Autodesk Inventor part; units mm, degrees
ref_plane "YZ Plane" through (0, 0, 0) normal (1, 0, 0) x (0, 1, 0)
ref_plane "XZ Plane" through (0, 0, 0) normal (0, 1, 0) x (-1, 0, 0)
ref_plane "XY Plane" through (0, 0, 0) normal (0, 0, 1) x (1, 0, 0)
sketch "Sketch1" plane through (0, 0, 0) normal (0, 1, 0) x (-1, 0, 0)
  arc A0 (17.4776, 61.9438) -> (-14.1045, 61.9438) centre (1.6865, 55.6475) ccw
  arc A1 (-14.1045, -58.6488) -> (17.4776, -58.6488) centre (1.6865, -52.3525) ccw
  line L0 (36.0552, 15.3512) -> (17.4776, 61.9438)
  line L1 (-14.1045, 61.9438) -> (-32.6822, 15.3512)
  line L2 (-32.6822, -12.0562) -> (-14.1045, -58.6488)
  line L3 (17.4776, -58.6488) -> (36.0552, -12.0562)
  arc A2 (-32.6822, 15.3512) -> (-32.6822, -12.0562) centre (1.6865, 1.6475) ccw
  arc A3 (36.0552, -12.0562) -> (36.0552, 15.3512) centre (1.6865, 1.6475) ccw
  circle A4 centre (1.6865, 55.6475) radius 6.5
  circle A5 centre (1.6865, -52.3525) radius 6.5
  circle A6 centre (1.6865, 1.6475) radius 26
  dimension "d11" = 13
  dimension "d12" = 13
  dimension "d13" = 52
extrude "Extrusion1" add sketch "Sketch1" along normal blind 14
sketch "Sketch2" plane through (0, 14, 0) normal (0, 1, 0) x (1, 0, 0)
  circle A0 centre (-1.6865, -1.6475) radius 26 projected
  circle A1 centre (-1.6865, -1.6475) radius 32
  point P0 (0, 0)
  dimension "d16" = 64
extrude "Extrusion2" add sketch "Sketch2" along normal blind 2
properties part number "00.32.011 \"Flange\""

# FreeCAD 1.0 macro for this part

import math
import FreeCAD as App
import Part
import Sketcher

V = App.Vector

doc = App.newDocument("Part")
body = doc.addObject("PartDesign::Body", "Body")

# Sketch on XZ plane
sketch1 = body.newObject("Sketcher::SketchObject", "Sketch")
sketch1.AttachmentSupport = (doc.getObject("XZ_Plane"), [""])
sketch1.MapMode = "FlatFace"
sketch1.addGeometry([
    Part.LineSegment(V(-36, 15, 0), V(-17, 62, 0)),  # 0
    Part.ArcOfCircle(Part.Circle(V(-2, 56, 0), V(0, 0, 1), 17), math.radians(22), math.radians(158)),  # 1
    Part.LineSegment(V(14, 62, 0), V(33, 15, 0)),  # 2
    Part.ArcOfCircle(Part.Circle(V(-2, 2, 0), V(0, 0, 1), 37), math.radians(-22), math.radians(22)),  # 3
    Part.LineSegment(V(33, -12, 0), V(14, -59, 0)),  # 4
    Part.ArcOfCircle(Part.Circle(V(-2, -52, 0), V(0, 0, 1), 17), math.radians(-158), math.radians(-22)),  # 5
    Part.LineSegment(V(-17, -59, 0), V(-36, -12, 0)),  # 6
    Part.ArcOfCircle(Part.Circle(V(-2, 2, 0), V(0, 0, 1), 37), math.radians(158), math.radians(202)),  # 7
    Part.Circle(V(-2, -52, 0), V(0, 0, 1), 6),  # 8
    Part.Circle(V(-2, 2, 0), V(0, 0, 1), 26),  # 9
    Part.Circle(V(-2, 56, 0), V(0, 0, 1), 6),  # 10
], False)
sketch1.addConstraint([
    Sketcher.Constraint("Tangent", 0, 2, 1, 2),
    Sketcher.Constraint("Tangent", 1, 1, 2, 1),
    Sketcher.Constraint("Tangent", 2, 2, 3, 2),
    Sketcher.Constraint("Tangent", 3, 1, 4, 1),
    Sketcher.Constraint("Tangent", 4, 2, 5, 2),
    Sketcher.Constraint("Tangent", 5, 1, 6, 1),
    Sketcher.Constraint("Tangent", 6, 2, 7, 2),
    Sketcher.Constraint("Tangent", 7, 1, 0, 1),
    Sketcher.Constraint("Coincident", 7, 3, 3, 3),
    Sketcher.Constraint("Coincident", 8, 3, 5, 3),
    Sketcher.Constraint("Coincident", 9, 3, 3, 3),
    Sketcher.Constraint("Coincident", 10, 3, 1, 3),
    Sketcher.Constraint("Equal", 1, 5),
    Sketcher.Constraint("Equal", 3, 7),
    Sketcher.Constraint("Equal", 8, 10),
    Sketcher.Constraint("Parallel", 0, 4),
    Sketcher.Constraint("Parallel", 2, 6),
    Sketcher.Constraint("Horizontal", 0, 2, 1, 1),
    Sketcher.Constraint("Diameter", 8, 13.0),
    Sketcher.Constraint("Diameter", 9, 52.0),
    Sketcher.Constraint("Radius", 1, 17.0),
    Sketcher.Constraint("Radius", 3, 37.0),
    Sketcher.Constraint("DistanceY", 3, 3, 1, 3, 54.0),
    Sketcher.Constraint("DistanceX", 1, 3, -1, 1, 1.6865),
    Sketcher.Constraint("DistanceY", -1, 1, 1, 3, 55.6475),
])
pad1 = body.newObject("PartDesign::Pad", "Pad")
pad1.Profile = sketch1
pad1.Length = 14
pad1.Reversed = True

# Sketch on XZ plane
sketch2 = body.newObject("Sketcher::SketchObject", "Sketch001")
sketch2.AttachmentSupport = (doc.getObject("XZ_Plane"), [""])
sketch2.MapMode = "FlatFace"
sketch2.AttachmentOffset = App.Placement(V(0, 0, -14), App.Rotation())
sketch2.addGeometry([
    Part.Circle(V(-2, 2, 0), V(0, 0, 1), 32),
    Part.Circle(V(-2, 2, 0), V(0, 0, 1), 26),
], False)
sketch2.addConstraint([
    Sketcher.Constraint("Coincident", 1, 3, 0, 3),
    Sketcher.Constraint("Diameter", 0, 64.0),
    Sketcher.Constraint("Diameter", 1, 52.0),
    Sketcher.Constraint("DistanceX", 0, 3, -1, 1, 1.6865),
    Sketcher.Constraint("DistanceY", -1, 1, 0, 3, 1.6475),
])
pad2 = body.newObject("PartDesign::Pad", "Pad001")
pad2.Profile = sketch2
pad2.Length = 2
pad2.Reversed = True

doc.recompute()
